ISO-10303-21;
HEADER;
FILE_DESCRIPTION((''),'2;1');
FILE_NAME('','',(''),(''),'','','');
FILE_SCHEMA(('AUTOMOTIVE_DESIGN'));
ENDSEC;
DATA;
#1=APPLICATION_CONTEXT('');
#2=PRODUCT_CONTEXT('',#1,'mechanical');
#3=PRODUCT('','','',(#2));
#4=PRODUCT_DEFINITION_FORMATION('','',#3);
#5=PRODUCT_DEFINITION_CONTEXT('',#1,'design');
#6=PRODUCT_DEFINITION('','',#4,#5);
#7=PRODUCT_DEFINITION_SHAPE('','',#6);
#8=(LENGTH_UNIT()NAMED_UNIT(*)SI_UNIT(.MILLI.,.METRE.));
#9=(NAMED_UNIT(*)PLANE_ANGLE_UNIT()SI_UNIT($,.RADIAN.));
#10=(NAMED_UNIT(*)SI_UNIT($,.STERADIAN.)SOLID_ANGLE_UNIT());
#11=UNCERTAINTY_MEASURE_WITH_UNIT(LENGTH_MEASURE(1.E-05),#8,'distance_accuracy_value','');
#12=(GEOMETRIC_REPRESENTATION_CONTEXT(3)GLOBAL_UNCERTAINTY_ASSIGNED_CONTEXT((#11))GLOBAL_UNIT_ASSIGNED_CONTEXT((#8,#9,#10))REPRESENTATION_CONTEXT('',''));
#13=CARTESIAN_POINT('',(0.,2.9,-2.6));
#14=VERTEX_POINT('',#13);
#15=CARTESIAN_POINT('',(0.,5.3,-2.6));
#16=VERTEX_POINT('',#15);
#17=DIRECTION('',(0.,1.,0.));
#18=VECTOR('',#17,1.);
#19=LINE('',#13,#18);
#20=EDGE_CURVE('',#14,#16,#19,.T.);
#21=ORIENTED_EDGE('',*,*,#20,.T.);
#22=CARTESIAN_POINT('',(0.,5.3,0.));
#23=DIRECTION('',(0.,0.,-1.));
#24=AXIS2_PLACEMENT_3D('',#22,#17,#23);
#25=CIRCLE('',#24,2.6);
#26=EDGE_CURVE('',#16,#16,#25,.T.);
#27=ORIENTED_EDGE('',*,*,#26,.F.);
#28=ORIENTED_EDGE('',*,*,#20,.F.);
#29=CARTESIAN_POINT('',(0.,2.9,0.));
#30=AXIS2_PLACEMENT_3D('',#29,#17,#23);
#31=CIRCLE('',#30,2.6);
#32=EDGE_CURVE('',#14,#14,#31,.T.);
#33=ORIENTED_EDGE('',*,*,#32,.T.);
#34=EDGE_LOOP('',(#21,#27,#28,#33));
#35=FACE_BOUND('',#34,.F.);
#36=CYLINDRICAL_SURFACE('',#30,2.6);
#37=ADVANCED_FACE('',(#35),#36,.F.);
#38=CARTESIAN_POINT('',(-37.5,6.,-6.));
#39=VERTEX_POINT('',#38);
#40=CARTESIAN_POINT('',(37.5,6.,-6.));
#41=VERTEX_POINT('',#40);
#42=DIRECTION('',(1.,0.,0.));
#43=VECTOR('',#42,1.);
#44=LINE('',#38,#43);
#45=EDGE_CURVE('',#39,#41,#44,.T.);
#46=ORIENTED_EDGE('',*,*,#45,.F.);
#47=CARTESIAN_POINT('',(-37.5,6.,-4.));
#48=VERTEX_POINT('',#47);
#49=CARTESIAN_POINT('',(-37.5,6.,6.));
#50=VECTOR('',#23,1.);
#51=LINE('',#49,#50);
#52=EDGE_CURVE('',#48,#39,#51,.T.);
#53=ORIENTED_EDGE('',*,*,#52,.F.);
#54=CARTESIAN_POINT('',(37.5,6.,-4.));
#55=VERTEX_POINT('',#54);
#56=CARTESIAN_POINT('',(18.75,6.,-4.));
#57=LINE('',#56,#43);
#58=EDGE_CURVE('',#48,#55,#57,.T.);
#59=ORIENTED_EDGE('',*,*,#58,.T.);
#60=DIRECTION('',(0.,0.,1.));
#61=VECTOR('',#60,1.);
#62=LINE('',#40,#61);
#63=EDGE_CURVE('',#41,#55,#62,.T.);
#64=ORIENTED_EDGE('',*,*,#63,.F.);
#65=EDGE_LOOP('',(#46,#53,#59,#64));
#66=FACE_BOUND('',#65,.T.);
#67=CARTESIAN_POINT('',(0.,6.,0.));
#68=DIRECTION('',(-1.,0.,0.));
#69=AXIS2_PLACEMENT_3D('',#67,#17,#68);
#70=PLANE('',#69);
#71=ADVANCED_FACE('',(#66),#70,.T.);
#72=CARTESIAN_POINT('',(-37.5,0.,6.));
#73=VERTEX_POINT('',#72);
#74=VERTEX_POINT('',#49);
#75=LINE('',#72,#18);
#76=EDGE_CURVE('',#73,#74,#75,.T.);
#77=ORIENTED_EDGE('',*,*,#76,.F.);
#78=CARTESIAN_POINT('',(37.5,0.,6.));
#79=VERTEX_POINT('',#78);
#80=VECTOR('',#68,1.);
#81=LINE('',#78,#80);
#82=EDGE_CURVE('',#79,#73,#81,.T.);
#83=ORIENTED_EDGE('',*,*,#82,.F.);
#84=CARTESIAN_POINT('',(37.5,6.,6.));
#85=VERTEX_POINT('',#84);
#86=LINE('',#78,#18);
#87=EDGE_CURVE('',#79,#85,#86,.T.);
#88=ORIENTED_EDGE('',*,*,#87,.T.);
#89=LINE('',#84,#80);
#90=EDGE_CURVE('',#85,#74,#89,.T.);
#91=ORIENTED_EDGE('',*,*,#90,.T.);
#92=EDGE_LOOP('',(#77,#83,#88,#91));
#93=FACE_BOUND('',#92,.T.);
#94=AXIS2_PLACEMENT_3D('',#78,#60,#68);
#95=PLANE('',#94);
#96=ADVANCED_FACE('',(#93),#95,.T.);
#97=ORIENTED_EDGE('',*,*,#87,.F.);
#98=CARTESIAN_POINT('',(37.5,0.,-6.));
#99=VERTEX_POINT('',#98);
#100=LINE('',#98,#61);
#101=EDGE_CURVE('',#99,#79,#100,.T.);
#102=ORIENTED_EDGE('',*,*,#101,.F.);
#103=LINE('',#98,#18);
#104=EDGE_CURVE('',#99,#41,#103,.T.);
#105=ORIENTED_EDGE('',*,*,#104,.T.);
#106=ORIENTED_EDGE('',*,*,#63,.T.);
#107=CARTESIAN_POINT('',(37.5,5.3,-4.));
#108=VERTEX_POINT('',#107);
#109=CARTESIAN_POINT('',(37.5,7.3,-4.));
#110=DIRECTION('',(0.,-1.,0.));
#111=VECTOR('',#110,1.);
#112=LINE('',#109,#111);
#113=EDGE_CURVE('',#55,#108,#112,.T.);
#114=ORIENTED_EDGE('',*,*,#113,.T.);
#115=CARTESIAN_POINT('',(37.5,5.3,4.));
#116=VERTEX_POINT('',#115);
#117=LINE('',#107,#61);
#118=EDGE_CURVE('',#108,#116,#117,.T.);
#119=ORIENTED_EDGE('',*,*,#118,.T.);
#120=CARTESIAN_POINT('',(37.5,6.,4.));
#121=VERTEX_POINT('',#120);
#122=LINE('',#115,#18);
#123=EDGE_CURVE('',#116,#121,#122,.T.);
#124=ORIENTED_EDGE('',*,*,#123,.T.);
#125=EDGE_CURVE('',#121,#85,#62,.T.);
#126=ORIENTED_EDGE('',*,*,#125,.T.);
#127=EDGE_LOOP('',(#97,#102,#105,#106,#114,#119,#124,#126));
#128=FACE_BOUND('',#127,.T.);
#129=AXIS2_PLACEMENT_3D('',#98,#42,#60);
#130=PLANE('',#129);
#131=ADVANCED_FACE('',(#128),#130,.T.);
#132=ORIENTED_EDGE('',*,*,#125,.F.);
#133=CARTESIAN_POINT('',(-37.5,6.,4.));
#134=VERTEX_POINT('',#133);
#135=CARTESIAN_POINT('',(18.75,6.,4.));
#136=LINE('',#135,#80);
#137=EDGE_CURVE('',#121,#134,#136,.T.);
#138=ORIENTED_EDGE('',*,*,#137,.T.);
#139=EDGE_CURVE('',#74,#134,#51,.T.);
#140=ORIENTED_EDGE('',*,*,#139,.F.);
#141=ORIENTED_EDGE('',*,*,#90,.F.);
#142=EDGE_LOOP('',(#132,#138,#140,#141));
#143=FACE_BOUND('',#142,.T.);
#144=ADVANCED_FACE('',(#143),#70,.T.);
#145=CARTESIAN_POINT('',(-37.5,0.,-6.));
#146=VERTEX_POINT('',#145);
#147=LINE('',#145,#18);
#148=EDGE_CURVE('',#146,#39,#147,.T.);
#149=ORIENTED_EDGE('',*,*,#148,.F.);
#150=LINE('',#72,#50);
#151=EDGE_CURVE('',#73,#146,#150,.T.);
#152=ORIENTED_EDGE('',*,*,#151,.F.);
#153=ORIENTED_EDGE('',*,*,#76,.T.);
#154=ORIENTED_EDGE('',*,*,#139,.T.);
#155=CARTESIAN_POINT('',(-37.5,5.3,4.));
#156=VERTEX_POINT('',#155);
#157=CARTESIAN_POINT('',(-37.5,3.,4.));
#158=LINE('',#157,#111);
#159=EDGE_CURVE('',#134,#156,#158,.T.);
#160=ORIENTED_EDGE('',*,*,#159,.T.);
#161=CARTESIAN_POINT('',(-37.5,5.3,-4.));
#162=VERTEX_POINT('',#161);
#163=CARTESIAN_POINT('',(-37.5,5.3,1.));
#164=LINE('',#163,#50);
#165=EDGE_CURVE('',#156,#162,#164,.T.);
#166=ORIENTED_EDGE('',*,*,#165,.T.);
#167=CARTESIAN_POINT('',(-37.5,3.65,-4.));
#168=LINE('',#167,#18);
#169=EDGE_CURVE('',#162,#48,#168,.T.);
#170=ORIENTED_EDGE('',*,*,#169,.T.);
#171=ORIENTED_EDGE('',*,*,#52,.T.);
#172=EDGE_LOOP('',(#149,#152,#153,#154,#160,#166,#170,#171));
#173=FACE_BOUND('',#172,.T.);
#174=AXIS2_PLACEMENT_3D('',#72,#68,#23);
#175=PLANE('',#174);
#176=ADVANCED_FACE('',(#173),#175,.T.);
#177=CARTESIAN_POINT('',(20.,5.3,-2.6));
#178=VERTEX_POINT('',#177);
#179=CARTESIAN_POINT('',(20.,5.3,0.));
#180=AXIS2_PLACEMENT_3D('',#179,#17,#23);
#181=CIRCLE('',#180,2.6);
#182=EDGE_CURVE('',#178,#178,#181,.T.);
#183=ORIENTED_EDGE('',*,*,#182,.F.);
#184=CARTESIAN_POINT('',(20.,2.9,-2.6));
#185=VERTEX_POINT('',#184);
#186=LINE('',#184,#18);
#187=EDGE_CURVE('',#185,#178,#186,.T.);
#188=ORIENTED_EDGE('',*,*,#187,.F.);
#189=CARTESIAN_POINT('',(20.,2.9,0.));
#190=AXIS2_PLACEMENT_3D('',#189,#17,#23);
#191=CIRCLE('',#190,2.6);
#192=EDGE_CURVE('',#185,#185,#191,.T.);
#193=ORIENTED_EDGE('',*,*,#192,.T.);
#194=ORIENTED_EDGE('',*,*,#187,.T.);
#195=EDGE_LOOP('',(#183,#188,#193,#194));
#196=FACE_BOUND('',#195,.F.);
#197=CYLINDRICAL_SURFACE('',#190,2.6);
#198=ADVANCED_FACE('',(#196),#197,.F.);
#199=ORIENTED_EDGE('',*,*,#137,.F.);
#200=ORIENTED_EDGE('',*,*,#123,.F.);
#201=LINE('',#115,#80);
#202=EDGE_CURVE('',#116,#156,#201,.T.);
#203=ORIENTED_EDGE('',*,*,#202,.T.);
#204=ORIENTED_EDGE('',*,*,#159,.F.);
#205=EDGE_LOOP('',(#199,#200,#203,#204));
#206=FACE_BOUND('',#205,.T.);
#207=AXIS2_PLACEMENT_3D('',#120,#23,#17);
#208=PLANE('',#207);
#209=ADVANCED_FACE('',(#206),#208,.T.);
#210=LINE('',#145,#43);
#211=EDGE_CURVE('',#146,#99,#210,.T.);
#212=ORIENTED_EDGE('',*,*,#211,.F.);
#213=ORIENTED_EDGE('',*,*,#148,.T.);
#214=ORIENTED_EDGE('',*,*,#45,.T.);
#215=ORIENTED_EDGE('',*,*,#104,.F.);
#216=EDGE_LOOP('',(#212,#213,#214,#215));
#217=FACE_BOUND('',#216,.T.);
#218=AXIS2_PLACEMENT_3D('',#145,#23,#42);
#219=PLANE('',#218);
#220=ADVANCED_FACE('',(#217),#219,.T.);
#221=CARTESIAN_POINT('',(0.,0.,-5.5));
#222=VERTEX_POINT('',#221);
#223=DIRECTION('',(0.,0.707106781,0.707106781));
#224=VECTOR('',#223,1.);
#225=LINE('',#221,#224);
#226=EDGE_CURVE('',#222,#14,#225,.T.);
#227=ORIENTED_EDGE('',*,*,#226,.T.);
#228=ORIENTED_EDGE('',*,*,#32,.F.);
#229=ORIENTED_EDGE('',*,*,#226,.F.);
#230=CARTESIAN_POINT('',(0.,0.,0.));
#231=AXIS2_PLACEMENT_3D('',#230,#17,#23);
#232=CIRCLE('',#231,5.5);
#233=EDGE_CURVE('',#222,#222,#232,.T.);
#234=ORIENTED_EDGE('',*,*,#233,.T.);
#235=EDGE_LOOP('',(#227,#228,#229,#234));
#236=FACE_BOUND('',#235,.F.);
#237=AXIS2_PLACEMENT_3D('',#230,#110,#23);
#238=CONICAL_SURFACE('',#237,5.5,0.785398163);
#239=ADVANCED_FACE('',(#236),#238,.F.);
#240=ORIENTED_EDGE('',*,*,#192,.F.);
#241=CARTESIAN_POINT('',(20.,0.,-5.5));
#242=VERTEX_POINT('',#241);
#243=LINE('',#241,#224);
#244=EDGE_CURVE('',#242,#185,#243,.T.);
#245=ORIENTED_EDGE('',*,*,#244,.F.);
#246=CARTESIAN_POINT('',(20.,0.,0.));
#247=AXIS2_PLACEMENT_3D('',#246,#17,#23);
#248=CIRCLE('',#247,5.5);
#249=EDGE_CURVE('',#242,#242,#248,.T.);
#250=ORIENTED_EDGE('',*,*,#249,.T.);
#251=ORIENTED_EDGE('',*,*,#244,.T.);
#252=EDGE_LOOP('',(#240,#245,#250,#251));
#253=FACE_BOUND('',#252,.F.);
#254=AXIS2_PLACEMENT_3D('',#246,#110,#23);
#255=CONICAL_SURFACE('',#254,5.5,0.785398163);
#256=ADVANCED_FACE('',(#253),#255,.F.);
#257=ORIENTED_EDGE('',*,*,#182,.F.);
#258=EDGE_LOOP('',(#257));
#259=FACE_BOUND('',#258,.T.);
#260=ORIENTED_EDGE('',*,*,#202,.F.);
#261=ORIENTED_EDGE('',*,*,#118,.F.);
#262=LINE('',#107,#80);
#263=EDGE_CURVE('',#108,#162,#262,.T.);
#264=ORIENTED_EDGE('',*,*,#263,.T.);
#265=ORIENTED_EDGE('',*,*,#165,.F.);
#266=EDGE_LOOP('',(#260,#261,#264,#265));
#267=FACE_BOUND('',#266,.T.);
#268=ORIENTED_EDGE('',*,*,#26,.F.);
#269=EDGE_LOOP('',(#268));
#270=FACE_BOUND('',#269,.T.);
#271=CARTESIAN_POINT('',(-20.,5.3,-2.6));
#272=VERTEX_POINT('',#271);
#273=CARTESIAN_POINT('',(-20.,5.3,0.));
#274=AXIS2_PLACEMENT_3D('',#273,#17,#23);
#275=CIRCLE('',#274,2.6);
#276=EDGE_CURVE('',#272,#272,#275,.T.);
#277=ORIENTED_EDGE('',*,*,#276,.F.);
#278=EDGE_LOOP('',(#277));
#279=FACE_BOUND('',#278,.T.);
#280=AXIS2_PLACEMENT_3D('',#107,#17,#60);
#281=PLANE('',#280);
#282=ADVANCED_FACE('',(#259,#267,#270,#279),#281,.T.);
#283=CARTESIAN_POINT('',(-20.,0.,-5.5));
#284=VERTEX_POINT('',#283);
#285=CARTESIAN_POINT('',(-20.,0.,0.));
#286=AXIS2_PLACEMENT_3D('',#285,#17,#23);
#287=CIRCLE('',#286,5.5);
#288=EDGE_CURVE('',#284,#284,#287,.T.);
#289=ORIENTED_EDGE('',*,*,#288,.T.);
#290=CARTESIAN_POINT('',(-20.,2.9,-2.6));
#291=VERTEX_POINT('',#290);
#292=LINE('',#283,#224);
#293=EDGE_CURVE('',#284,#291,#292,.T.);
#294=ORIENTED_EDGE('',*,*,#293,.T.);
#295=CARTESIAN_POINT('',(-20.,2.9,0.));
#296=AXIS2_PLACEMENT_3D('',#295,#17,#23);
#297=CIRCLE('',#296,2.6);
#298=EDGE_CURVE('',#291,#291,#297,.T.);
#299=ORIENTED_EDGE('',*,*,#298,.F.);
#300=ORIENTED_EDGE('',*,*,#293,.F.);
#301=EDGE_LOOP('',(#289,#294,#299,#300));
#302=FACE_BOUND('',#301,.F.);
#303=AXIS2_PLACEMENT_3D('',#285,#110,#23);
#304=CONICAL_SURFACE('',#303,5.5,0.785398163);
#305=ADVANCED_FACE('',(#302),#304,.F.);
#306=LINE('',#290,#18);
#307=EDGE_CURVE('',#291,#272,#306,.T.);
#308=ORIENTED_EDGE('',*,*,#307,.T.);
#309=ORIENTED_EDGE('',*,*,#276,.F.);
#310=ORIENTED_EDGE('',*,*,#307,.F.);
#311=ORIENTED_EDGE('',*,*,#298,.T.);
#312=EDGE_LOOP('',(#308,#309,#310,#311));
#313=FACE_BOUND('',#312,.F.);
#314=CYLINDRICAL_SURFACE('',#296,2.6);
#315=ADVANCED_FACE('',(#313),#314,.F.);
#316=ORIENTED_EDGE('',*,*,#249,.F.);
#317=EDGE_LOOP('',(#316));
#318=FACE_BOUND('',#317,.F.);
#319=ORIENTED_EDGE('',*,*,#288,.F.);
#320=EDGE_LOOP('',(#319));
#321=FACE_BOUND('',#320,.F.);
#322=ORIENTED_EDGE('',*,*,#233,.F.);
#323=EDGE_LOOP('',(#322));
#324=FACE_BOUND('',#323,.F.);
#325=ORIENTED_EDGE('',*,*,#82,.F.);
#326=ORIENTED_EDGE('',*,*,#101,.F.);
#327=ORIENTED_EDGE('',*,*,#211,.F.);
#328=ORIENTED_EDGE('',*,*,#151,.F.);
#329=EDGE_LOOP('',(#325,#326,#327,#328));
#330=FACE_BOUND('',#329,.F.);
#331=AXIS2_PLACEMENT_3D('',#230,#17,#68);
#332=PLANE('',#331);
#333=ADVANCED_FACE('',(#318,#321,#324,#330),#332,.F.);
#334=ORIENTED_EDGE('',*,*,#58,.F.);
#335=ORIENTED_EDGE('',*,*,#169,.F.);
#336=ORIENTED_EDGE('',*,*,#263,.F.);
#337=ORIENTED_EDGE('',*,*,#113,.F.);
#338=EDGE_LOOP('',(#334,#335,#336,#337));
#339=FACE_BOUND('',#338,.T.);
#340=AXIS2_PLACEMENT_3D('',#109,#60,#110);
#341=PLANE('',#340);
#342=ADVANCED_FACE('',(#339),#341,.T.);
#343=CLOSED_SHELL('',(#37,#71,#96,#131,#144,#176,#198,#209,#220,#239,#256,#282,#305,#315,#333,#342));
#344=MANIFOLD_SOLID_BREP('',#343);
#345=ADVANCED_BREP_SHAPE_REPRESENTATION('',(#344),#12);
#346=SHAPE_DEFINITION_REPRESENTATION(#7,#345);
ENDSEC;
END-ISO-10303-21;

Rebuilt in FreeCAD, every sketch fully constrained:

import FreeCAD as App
import Part
import Sketcher
from FreeCAD import Vector

doc = App.newDocument("Part")
body = doc.addObject("PartDesign::Body", "Body")

# Sketch on XZ plane
sketch1 = doc.addObject("Sketcher::SketchObject", "Sketch")
body.addObject(sketch1)
sketch1.AttachmentSupport = (doc.XZ_Plane, [""])
sketch1.MapMode = "FlatFace"
sketch1.addGeometry([
    Part.LineSegment(Vector(37.5, -6, 0), Vector(-37.5, -6, 0)),
    Part.LineSegment(Vector(-37.5, -6, 0), Vector(-37.5, 6, 0)),
    Part.LineSegment(Vector(-37.5, 6, 0), Vector(37.5, 6, 0)),
    Part.LineSegment(Vector(37.5, 6, 0), Vector(37.5, -6, 0)),
], False)
sketch1.addConstraint([
    Sketcher.Constraint("Coincident", 0, 2, 1, 1),
    Sketcher.Constraint("Coincident", 1, 2, 2, 1),
    Sketcher.Constraint("Coincident", 2, 2, 3, 1),
    Sketcher.Constraint("Coincident", 3, 2, 0, 1),
    Sketcher.Constraint("Horizontal", 0),
    Sketcher.Constraint("Vertical", 1),
    Sketcher.Constraint("Horizontal", 2),
    Sketcher.Constraint("Vertical", 3),
    Sketcher.Constraint("Symmetric", 0, 2, 2, 2, -1, 1),
    Sketcher.Constraint("DistanceX", 0, 2, 0, 1, 75.0),
    Sketcher.Constraint("DistanceY", 1, 1, 1, 2, 12.0),
])
pad1 = doc.addObject("PartDesign::Pad", "Pad")
body.addObject(pad1)
pad1.Profile = sketch1
pad1.Length = 6
pad1.Reversed = True

# Sketch on YZ plane
sketch2 = doc.addObject("Sketcher::SketchObject", "Sketch001")
body.addObject(sketch2)
sketch2.AttachmentSupport = (doc.YZ_Plane, [""])
sketch2.MapMode = "FlatFace"
sketch2.AttachmentOffset = App.Placement(Vector(0, 0, 37.5), App.Rotation())
sketch2.addGeometry([
    Part.LineSegment(Vector(7.3, -4, 0), Vector(7.3, 4, 0)),
    Part.LineSegment(Vector(7.3, 4, 0), Vector(5.3, 4, 0)),
    Part.LineSegment(Vector(5.3, 4, 0), Vector(5.3, -4, 0)),
    Part.LineSegment(Vector(5.3, -4, 0), Vector(7.3, -4, 0)),
], False)
sketch2.addConstraint([
    Sketcher.Constraint("Coincident", 0, 2, 1, 1),
    Sketcher.Constraint("Coincident", 1, 2, 2, 1),
    Sketcher.Constraint("Coincident", 2, 2, 3, 1),
    Sketcher.Constraint("Coincident", 3, 2, 0, 1),
    Sketcher.Constraint("Vertical", 0),
    Sketcher.Constraint("Horizontal", 1),
    Sketcher.Constraint("Vertical", 2),
    Sketcher.Constraint("Horizontal", 3),
    Sketcher.Constraint("DistanceX", 1, 2, 1, 1, 2.0),
    Sketcher.Constraint("DistanceY", 0, 1, 0, 2, 8.0),
    Sketcher.Constraint("DistanceY", -1, 1, 0, 2, 4.0),
    Sketcher.Constraint("DistanceX", -1, 1, 0, 2, 7.3),
])
pocket1 = doc.addObject("PartDesign::Pocket", "Pocket")
body.addObject(pocket1)
pocket1.Profile = sketch2
pocket1.Type = "ThroughAll"
pocket1.Midplane = True

# Sketch on XZ plane
sketch3 = doc.addObject("Sketcher::SketchObject", "Sketch002")
body.addObject(sketch3)
sketch3.AttachmentSupport = (doc.XZ_Plane, [""])
sketch3.MapMode = "FlatFace"
sketch3.addGeometry([
    Part.Circle(Vector(20, 0, 0), Vector(0, 0, 1), 2.6),
    Part.Circle(Vector(0, 0, 0), Vector(0, 0, 1), 2.6),
    Part.Circle(Vector(-20, 0, 0), Vector(0, 0, 1), 2.6),
], False)
sketch3.addConstraint([
    Sketcher.Constraint("Coincident", 1, 3, -1, 1),
    Sketcher.Constraint("Equal", 0, 1),
    Sketcher.Constraint("Equal", 1, 2),
    Sketcher.Constraint("Symmetric", 0, 3, 2, 3, -1, 1),
    Sketcher.Constraint("PointOnObject", 0, 3, -1),
    Sketcher.Constraint("Diameter", 0, 5.2),
    Sketcher.Constraint("DistanceX", -1, 1, 0, 3, 20.0),
])
doc.recompute()
hole = doc.addObject("PartDesign::Hole", "Hole")
body.addObject(hole)
hole.Profile = sketch3
hole.ThreadType = "None"
hole.Diameter = 5.2
hole.DepthType = "ThroughAll"
hole.HoleCutType = "Countersink"
hole.HoleCutDiameter = 11
hole.HoleCutCountersinkAngle = 90

doc.recompute()
